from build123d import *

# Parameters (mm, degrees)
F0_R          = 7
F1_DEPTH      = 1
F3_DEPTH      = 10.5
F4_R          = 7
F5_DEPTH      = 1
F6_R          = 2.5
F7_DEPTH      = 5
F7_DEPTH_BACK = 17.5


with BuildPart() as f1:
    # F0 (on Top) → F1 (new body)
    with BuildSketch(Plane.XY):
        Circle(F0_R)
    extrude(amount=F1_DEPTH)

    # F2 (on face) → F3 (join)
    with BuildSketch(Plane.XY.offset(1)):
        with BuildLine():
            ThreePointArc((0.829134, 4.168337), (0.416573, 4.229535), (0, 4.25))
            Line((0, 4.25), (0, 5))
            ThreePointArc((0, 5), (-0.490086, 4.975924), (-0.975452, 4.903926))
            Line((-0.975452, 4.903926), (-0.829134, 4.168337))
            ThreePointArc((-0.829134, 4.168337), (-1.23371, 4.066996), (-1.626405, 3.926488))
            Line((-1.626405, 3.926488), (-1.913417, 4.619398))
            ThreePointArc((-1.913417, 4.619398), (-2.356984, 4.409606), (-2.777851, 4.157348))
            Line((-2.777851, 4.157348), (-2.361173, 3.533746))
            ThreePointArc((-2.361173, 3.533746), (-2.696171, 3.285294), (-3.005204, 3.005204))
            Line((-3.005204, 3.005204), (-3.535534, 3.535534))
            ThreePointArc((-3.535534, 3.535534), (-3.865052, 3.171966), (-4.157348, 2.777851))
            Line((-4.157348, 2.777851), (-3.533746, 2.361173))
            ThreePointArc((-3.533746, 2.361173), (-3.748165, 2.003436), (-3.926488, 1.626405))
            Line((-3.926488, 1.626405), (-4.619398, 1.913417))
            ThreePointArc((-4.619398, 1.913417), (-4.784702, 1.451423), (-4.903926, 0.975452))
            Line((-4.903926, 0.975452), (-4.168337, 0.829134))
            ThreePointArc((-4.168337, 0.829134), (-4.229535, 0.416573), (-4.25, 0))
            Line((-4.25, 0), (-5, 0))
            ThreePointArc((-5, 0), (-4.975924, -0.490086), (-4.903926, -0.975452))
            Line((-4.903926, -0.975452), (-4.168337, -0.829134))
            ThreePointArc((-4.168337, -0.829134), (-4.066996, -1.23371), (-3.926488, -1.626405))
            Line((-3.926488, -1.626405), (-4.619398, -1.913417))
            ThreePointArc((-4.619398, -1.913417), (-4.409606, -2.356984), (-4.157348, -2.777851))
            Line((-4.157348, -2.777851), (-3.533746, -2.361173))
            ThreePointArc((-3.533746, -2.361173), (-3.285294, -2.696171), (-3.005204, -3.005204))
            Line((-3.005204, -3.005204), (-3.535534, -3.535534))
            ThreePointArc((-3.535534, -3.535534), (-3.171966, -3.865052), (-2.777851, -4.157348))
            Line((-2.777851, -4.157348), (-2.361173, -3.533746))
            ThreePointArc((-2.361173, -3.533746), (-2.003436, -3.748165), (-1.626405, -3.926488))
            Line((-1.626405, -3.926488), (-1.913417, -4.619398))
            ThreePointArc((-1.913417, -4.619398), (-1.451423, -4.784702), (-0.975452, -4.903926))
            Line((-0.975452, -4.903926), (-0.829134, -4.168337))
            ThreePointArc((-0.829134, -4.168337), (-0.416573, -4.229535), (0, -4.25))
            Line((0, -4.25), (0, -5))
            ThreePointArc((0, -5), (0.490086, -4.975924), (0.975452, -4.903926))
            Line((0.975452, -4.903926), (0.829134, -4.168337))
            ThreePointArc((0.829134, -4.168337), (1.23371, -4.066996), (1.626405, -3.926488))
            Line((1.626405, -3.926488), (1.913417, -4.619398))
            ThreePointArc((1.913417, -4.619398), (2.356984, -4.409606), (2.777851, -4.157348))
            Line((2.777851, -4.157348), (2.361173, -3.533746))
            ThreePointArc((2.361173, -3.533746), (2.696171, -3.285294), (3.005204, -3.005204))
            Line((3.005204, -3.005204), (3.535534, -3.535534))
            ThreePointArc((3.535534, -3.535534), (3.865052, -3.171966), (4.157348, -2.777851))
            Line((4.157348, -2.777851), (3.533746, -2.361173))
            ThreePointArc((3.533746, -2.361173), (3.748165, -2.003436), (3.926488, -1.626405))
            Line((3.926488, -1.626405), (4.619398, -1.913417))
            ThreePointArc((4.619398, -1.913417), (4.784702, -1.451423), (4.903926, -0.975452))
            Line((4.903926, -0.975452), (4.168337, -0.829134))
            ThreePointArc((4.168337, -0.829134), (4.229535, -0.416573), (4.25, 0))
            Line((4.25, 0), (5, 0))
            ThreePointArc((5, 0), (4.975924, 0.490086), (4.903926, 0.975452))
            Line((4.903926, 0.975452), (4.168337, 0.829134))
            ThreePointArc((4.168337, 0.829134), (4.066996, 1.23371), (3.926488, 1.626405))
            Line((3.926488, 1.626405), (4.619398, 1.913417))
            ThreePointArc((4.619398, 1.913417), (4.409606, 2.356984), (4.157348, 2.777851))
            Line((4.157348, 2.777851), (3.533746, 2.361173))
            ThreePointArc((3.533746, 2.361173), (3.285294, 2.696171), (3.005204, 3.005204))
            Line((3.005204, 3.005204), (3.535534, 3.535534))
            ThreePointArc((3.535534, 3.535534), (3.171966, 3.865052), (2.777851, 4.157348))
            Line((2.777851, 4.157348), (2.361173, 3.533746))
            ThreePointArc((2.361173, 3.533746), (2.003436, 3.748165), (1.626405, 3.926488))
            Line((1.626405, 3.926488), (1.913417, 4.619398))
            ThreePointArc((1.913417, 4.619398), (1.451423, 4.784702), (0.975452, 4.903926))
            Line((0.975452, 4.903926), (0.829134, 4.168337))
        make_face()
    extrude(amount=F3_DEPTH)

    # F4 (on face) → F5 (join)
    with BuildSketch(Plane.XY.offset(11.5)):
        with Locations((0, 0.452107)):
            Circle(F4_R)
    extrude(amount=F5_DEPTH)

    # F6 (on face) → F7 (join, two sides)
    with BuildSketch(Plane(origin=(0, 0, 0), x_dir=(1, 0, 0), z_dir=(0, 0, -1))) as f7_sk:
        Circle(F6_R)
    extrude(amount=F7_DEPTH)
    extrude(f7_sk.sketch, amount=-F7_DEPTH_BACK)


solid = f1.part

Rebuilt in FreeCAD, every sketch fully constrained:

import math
import FreeCAD as App
import Part
import Sketcher

V = App.Vector
Q = App.Units.Quantity

doc = App.newDocument("Part")
body = doc.addObject("PartDesign::Body", "Body")

# Sketch on XY plane
sketch1 = doc.addObject("Sketcher::SketchObject", "Sketch")
body.addObject(sketch1)
sketch1.AttachmentSupport = (doc.XY_Plane, [""])
sketch1.MapMode = "FlatFace"
sketch1.addGeometry(Part.Circle(V(0, 0, 0), V(0, 0, 1), 7), False)
sketch1.addConstraint([
    Sketcher.Constraint("Coincident", 0, 3, -1, 1),
    Sketcher.Constraint("Diameter", 0, 14.0),
])
pad1 = doc.addObject("PartDesign::Pad", "Pad")
body.addObject(pad1)
pad1.Profile = sketch1
pad1.Length = 1

# Sketch on XY plane
sketch2 = doc.addObject("Sketcher::SketchObject", "Sketch001")
body.addObject(sketch2)
sketch2.AttachmentSupport = (doc.XY_Plane, [""])
sketch2.MapMode = "FlatFace"
sketch2.AttachmentOffset = App.Placement(V(0, 0, 1), App.Rotation())
sketch2.addGeometry([
    Part.ArcOfCircle(Part.Circle(V(0.000001, 0.000027, 0), V(0, 0, 1), 4.249973), math.radians(78.749933), math.radians(90.000008)),  # 0
    Part.LineSegment(V(0, 4.25, 0), V(0, 5, 0)),  # 1
    Part.ArcOfCircle(Part.Circle(V(-0.00001, 0.000114, 0), V(0, 0, 1), 4.999886), math.radians(89.999889), math.radians(101.250153)),  # 2
    Part.LineSegment(V(-0.975452, 4.903926, 0), V(-0.829134, 4.168337, 0)),  # 3
    Part.ArcOfCircle(Part.Circle(V(0.000012, -0.000049, 0), V(0, 0, 1), 4.25005), math.radians(101.250031), math.radians(112.499901)),  # 4
    Part.LineSegment(V(-1.626405, 3.926488, 0), V(-1.913417, 4.619398, 0)),  # 5
    Part.ArcOfCircle(Part.Circle(V(0.00002, -0.000034, 0), V(0, 0, 1), 5.000039), math.radians(112.500064), math.radians(123.749978)),  # 6
    Part.LineSegment(V(-2.777851, 4.157348, 0), V(-2.361173, 3.533746, 0)),  # 7
    Part.ArcOfCircle(Part.Circle(V(0.000087, -0.000109, 0), V(0, 0, 1), 4.250139), math.radians(123.75015), math.radians(134.999788)),  # 8
    Part.LineSegment(V(-3.005204, 3.005204, 0), V(-3.535534, 3.535534, 0)),  # 9
    Part.ArcOfCircle(Part.Circle(V(0.000076, -0.000061, 0), V(0, 0, 1), 5.000097), math.radians(135.000125), math.radians(146.249908)),  # 10
    Part.LineSegment(V(-4.157348, 2.777851, 0), V(-3.533746, 2.361173, 0)),  # 11
    Part.ArcOfCircle(Part.Circle(V(0.000071, -0.000039, 0), V(0, 0, 1), 4.25008), math.radians(146.250093), math.radians(157.499868)),  # 12
    Part.LineSegment(V(-3.926488, 1.626405, 0), V(-4.619398, 1.913417, 0)),  # 13
    Part.ArcOfCircle(Part.Circle(V(-0.000045, 0.000017, 0), V(0, 0, 1), 4.999953), math.radians(157.499983), math.radians(168.750081)),  # 14
    Part.LineSegment(V(-4.903926, 0.975452, 0), V(-4.168337, 0.829134, 0)),  # 15
    Part.ArcOfCircle(Part.Circle(V(-0.000027, 0.000001, 0), V(0, 0, 1), 4.249973), math.radians(168.749933), math.radians(180.000008)),  # 16
    Part.LineSegment(V(-4.25, 0, 0), V(-5, 0, 0)),  # 17
    Part.ArcOfCircle(Part.Circle(V(-0.000114, -0.00001, 0), V(0, 0, 1), 4.999886), math.radians(179.999889), math.radians(191.250153)),  # 18
    Part.LineSegment(V(-4.903926, -0.975452, 0), V(-4.168337, -0.829134, 0)),  # 19
    Part.ArcOfCircle(Part.Circle(V(0.000049, 0.000012, 0), V(0, 0, 1), 4.25005), math.radians(-168.749969), math.radians(-157.500099)),  # 20
    Part.LineSegment(V(-3.926488, -1.626405, 0), V(-4.619398, -1.913417, 0)),  # 21
    Part.ArcOfCircle(Part.Circle(V(0.000034, 0.00002, 0), V(0, 0, 1), 5.000039), math.radians(-157.499936), math.radians(-146.250022)),  # 22
    Part.LineSegment(V(-4.157348, -2.777851, 0), V(-3.533746, -2.361173, 0)),  # 23
    Part.ArcOfCircle(Part.Circle(V(0.000109, 0.000087, 0), V(0, 0, 1), 4.250139), math.radians(-146.24985), math.radians(-135.000212)),  # 24
    Part.LineSegment(V(-3.005204, -3.005204, 0), V(-3.535534, -3.535534, 0)),  # 25
    Part.ArcOfCircle(Part.Circle(V(0.000061, 0.000076, 0), V(0, 0, 1), 5.000097), math.radians(-134.999875), math.radians(-123.750092)),  # 26
    Part.LineSegment(V(-2.777851, -4.157348, 0), V(-2.361173, -3.533746, 0)),  # 27
    Part.ArcOfCircle(Part.Circle(V(0.000039, 0.000071, 0), V(0, 0, 1), 4.25008), math.radians(-123.749907), math.radians(-112.500132)),  # 28
    Part.LineSegment(V(-1.626405, -3.926488, 0), V(-1.913417, -4.619398, 0)),  # 29
    Part.ArcOfCircle(Part.Circle(V(-0.000017, -0.000045, 0), V(0, 0, 1), 4.999953), math.radians(-112.500017), math.radians(-101.249919)),  # 30
    Part.LineSegment(V(-0.975452, -4.903926, 0), V(-0.829134, -4.168337, 0)),  # 31
    Part.ArcOfCircle(Part.Circle(V(-0.000001, -0.000027, 0), V(0, 0, 1), 4.249973), math.radians(-101.250067), math.radians(-89.999992)),  # 32
    Part.LineSegment(V(0, -4.25, 0), V(0, -5, 0)),  # 33
    Part.ArcOfCircle(Part.Circle(V(0.00001, -0.000114, 0), V(0, 0, 1), 4.999886), math.radians(-90.000111), math.radians(-78.749847)),  # 34
    Part.LineSegment(V(0.975452, -4.903926, 0), V(0.829134, -4.168337, 0)),  # 35
    Part.ArcOfCircle(Part.Circle(V(-0.000012, 0.000049, 0), V(0, 0, 1), 4.25005), math.radians(-78.749969), math.radians(-67.500099)),  # 36
    Part.LineSegment(V(1.626405, -3.926488, 0), V(1.913417, -4.619398, 0)),  # 37
    Part.ArcOfCircle(Part.Circle(V(-0.00002, 0.000034, 0), V(0, 0, 1), 5.000039), math.radians(-67.499936), math.radians(-56.250022)),  # 38
    Part.LineSegment(V(2.777851, -4.157348, 0), V(2.361173, -3.533746, 0)),  # 39
    Part.ArcOfCircle(Part.Circle(V(-0.000087, 0.000109, 0), V(0, 0, 1), 4.250139), math.radians(-56.24985), math.radians(-45.000212)),  # 40
    Part.LineSegment(V(3.005204, -3.005204, 0), V(3.535534, -3.535534, 0)),  # 41
    Part.ArcOfCircle(Part.Circle(V(-0.000076, 0.000061, 0), V(0, 0, 1), 5.000097), math.radians(-44.999875), math.radians(-33.750092)),  # 42
    Part.LineSegment(V(4.157348, -2.777851, 0), V(3.533746, -2.361173, 0)),  # 43
    Part.ArcOfCircle(Part.Circle(V(-0.000071, 0.000039, 0), V(0, 0, 1), 4.25008), math.radians(-33.749907), math.radians(-22.500132)),  # 44
    Part.LineSegment(V(3.926488, -1.626405, 0), V(4.619398, -1.913417, 0)),  # 45
    Part.ArcOfCircle(Part.Circle(V(0.000045, -0.000017, 0), V(0, 0, 1), 4.999953), math.radians(-22.500017), math.radians(-11.249919)),  # 46
    Part.LineSegment(V(4.903926, -0.975452, 0), V(4.168337, -0.829134, 0)),  # 47
    Part.ArcOfCircle(Part.Circle(V(0.000027, -0.000001, 0), V(0, 0, 1), 4.249973), math.radians(-11.250067), math.radians(0.000008)),  # 48
    Part.LineSegment(V(4.25, 0, 0), V(5, 0, 0)),  # 49
    Part.ArcOfCircle(Part.Circle(V(0.000114, 0.00001, 0), V(0, 0, 1), 4.999886), math.radians(-0.000111), math.radians(11.250153)),  # 50
    Part.LineSegment(V(4.903926, 0.975452, 0), V(4.168337, 0.829134, 0)),  # 51
    Part.ArcOfCircle(Part.Circle(V(-0.000049, -0.000012, 0), V(0, 0, 1), 4.25005), math.radians(11.250031), math.radians(22.499901)),  # 52
    Part.LineSegment(V(3.926488, 1.626405, 0), V(4.619398, 1.913417, 0)),  # 53
    Part.ArcOfCircle(Part.Circle(V(-0.000034, -0.00002, 0), V(0, 0, 1), 5.000039), math.radians(22.500064), math.radians(33.749978)),  # 54
    Part.LineSegment(V(4.157348, 2.777851, 0), V(3.533746, 2.361173, 0)),  # 55
    Part.ArcOfCircle(Part.Circle(V(-0.000109, -0.000087, 0), V(0, 0, 1), 4.250139), math.radians(33.75015), math.radians(44.999788)),  # 56
    Part.LineSegment(V(3.005204, 3.005204, 0), V(3.535534, 3.535534, 0)),  # 57
    Part.ArcOfCircle(Part.Circle(V(-0.000061, -0.000076, 0), V(0, 0, 1), 5.000097), math.radians(45.000125), math.radians(56.249908)),  # 58
    Part.LineSegment(V(2.777851, 4.157348, 0), V(2.361173, 3.533746, 0)),  # 59
    Part.ArcOfCircle(Part.Circle(V(-0.000039, -0.000071, 0), V(0, 0, 1), 4.25008), math.radians(56.250093), math.radians(67.499868)),  # 60
    Part.LineSegment(V(1.626405, 3.926488, 0), V(1.913417, 4.619398, 0)),  # 61
    Part.ArcOfCircle(Part.Circle(V(0.000017, 0.000045, 0), V(0, 0, 1), 4.999953), math.radians(67.499983), math.radians(78.750081)),  # 62
    Part.LineSegment(V(0.975452, 4.903926, 0), V(0.829134, 4.168337, 0)),  # 63
], False)
sketch2.addConstraint([
    Sketcher.Constraint("Coincident", 0, 2, 1, 1),
    Sketcher.Constraint("Coincident", 1, 2, 2, 1),
    Sketcher.Constraint("Coincident", 2, 2, 3, 1),
    Sketcher.Constraint("Coincident", 3, 2, 4, 1),
    Sketcher.Constraint("Coincident", 4, 2, 5, 1),
    Sketcher.Constraint("Coincident", 5, 2, 6, 1),
    Sketcher.Constraint("Coincident", 6, 2, 7, 1),
    Sketcher.Constraint("Coincident", 7, 2, 8, 1),
    Sketcher.Constraint("Coincident", 8, 2, 9, 1),
    Sketcher.Constraint("Coincident", 9, 2, 10, 1),
    Sketcher.Constraint("Coincident", 10, 2, 11, 1),
    Sketcher.Constraint("Coincident", 11, 2, 12, 1),
    Sketcher.Constraint("Coincident", 12, 2, 13, 1),
    Sketcher.Constraint("Coincident", 13, 2, 14, 1),
    Sketcher.Constraint("Coincident", 14, 2, 15, 1),
    Sketcher.Constraint("Coincident", 15, 2, 16, 1),
    Sketcher.Constraint("Coincident", 16, 2, 17, 1),
    Sketcher.Constraint("Coincident", 17, 2, 18, 1),
    Sketcher.Constraint("Coincident", 18, 2, 19, 1),
    Sketcher.Constraint("Coincident", 19, 2, 20, 1),
    Sketcher.Constraint("Coincident", 20, 2, 21, 1),
    Sketcher.Constraint("Coincident", 21, 2, 22, 1),
    Sketcher.Constraint("Coincident", 22, 2, 23, 1),
    Sketcher.Constraint("Coincident", 23, 2, 24, 1),
    Sketcher.Constraint("Coincident", 24, 2, 25, 1),
    Sketcher.Constraint("Coincident", 25, 2, 26, 1),
    Sketcher.Constraint("Coincident", 26, 2, 27, 1),
    Sketcher.Constraint("Coincident", 27, 2, 28, 1),
    Sketcher.Constraint("Coincident", 28, 2, 29, 1),
    Sketcher.Constraint("Coincident", 29, 2, 30, 1),
    Sketcher.Constraint("Coincident", 30, 2, 31, 1),
    Sketcher.Constraint("Coincident", 31, 2, 32, 1),
    Sketcher.Constraint("Coincident", 32, 2, 33, 1),
    Sketcher.Constraint("Coincident", 33, 2, 34, 1),
    Sketcher.Constraint("Coincident", 34, 2, 35, 1),
    Sketcher.Constraint("Coincident", 35, 2, 36, 1),
    Sketcher.Constraint("Coincident", 36, 2, 37, 1),
    Sketcher.Constraint("Coincident", 37, 2, 38, 1),
    Sketcher.Constraint("Coincident", 38, 2, 39, 1),
    Sketcher.Constraint("Coincident", 39, 2, 40, 1),
    Sketcher.Constraint("Coincident", 40, 2, 41, 1),
    Sketcher.Constraint("Coincident", 41, 2, 42, 1),
    Sketcher.Constraint("Coincident", 42, 2, 43, 1),
    Sketcher.Constraint("Coincident", 43, 2, 44, 1),
    Sketcher.Constraint("Coincident", 44, 2, 45, 1),
    Sketcher.Constraint("Coincident", 45, 2, 46, 1),
    Sketcher.Constraint("Coincident", 46, 2, 47, 1),
    Sketcher.Constraint("Coincident", 47, 2, 48, 1),
    Sketcher.Constraint("Coincident", 48, 2, 49, 1),
    Sketcher.Constraint("Coincident", 49, 2, 50, 1),
    Sketcher.Constraint("Coincident", 50, 2, 51, 1),
    Sketcher.Constraint("Coincident", 51, 2, 52, 1),
    Sketcher.Constraint("Coincident", 52, 2, 53, 1),
    Sketcher.Constraint("Coincident", 53, 2, 54, 1),
    Sketcher.Constraint("Coincident", 54, 2, 55, 1),
    Sketcher.Constraint("Coincident", 55, 2, 56, 1),
    Sketcher.Constraint("Coincident", 56, 2, 57, 1),
    Sketcher.Constraint("Coincident", 57, 2, 58, 1),
    Sketcher.Constraint("Coincident", 58, 2, 59, 1),
    Sketcher.Constraint("Coincident", 59, 2, 60, 1),
    Sketcher.Constraint("Coincident", 60, 2, 61, 1),
    Sketcher.Constraint("Coincident", 61, 2, 62, 1),
    Sketcher.Constraint("Coincident", 62, 2, 63, 1),
    Sketcher.Constraint("Coincident", 63, 2, 0, 1),
    Sketcher.Constraint("Vertical", 1),
    Sketcher.Constraint("Horizontal", 17),
    Sketcher.Constraint("Vertical", 33),
    Sketcher.Constraint("Horizontal", 49),
    Sketcher.Constraint("Equal", 0, 16),
    Sketcher.Constraint("Equal", 2, 18),
    Sketcher.Constraint("Equal", 4, 20),
    Sketcher.Constraint("Equal", 6, 22),
    Sketcher.Constraint("Equal", 8, 24),
    Sketcher.Constraint("Equal", 10, 26),
    Sketcher.Constraint("Equal", 12, 28),
    Sketcher.Constraint("Equal", 14, 30),
    Sketcher.Constraint("Equal", 16, 32),
    Sketcher.Constraint("Equal", 18, 34),
    Sketcher.Constraint("Equal", 20, 36),
    Sketcher.Constraint("Equal", 22, 38),
    Sketcher.Constraint("Equal", 24, 40),
    Sketcher.Constraint("Equal", 26, 42),
    Sketcher.Constraint("Equal", 28, 44),
    Sketcher.Constraint("Equal", 30, 46),
    Sketcher.Constraint("Equal", 32, 48),
    Sketcher.Constraint("Equal", 34, 50),
    Sketcher.Constraint("Equal", 36, 52),
    Sketcher.Constraint("Equal", 38, 54),
    Sketcher.Constraint("Equal", 40, 56),
    Sketcher.Constraint("Equal", 42, 58),
    Sketcher.Constraint("Equal", 44, 60),
    Sketcher.Constraint("Equal", 46, 62),
    Sketcher.Constraint("Symmetric", 0, 3, 32, 3, -1, 1),
    Sketcher.Constraint("Symmetric", 2, 3, 34, 3, -1, 1),
    Sketcher.Constraint("Symmetric", 4, 3, 36, 3, -1, 1),
    Sketcher.Constraint("Symmetric", 6, 3, 38, 3, -1, 1),
    Sketcher.Constraint("Symmetric", 8, 3, 40, 3, -1, 1),
    Sketcher.Constraint("Symmetric", 10, 3, 42, 3, -1, 1),
    Sketcher.Constraint("Symmetric", 12, 3, 44, 3, -1, 1),
    Sketcher.Constraint("Symmetric", 14, 3, 46, 3, -1, 1),
    Sketcher.Constraint("Symmetric", 16, 3, 48, 3, -1, 1),
    Sketcher.Constraint("Symmetric", 18, 3, 50, 3, -1, 1),
    Sketcher.Constraint("Symmetric", 20, 3, 52, 3, -1, 1),
    Sketcher.Constraint("Symmetric", 22, 3, 54, 3, -1, 1),
    Sketcher.Constraint("Symmetric", 24, 3, 56, 3, -1, 1),
    Sketcher.Constraint("Symmetric", 26, 3, 58, 3, -1, 1),
    Sketcher.Constraint("Symmetric", 28, 3, 60, 3, -1, 1),
    Sketcher.Constraint("Symmetric", 30, 3, 62, 3, -1, 1),
    Sketcher.Constraint("Symmetric", 14, 3, 20, 3, -2),
    Sketcher.Constraint("Symmetric", 4, 3, 30, 3, -2),
    Sketcher.Constraint("Symmetric", 30, 2, 34, 2, -2),
    Sketcher.Constraint("Symmetric", 31, 2, 35, 2, -2),
    Sketcher.Constraint("Symmetric", 28, 2, 36, 2, -2),
    Sketcher.Constraint("Symmetric", 29, 2, 37, 2, -2),
    Sketcher.Constraint("Symmetric", 26, 2, 38, 2, -2),
    Sketcher.Constraint("Symmetric", 27, 2, 39, 2, -2),
    Sketcher.Constraint("Symmetric", 24, 2, 40, 2, -2),
    Sketcher.Constraint("Symmetric", 25, 2, 41, 2, -2),
    Sketcher.Constraint("Symmetric", 22, 2, 42, 2, -2),
    Sketcher.Constraint("Symmetric", 23, 2, 43, 2, -2),
    Sketcher.Constraint("Symmetric", 20, 2, 44, 2, -2),
    Sketcher.Constraint("Symmetric", 21, 2, 45, 2, -2),
    Sketcher.Constraint("Symmetric", 18, 2, 46, 2, -2),
    Sketcher.Constraint("Symmetric", 19, 2, 47, 2, -2),
    Sketcher.Constraint("PointOnObject", 0, 3, -2),
    Sketcher.Constraint("PointOnObject", 16, 3, -1),
    Sketcher.Constraint("PointOnObject", 0, 2, -2),
    Sketcher.Constraint("PointOnObject", 16, 2, -1),
    Sketcher.Constraint("PointOnObject", 32, 2, -2),
    Sketcher.Constraint("PointOnObject", 48, 2, -1),
    Sketcher.Constraint("Perpendicular", 3, 19),
    Sketcher.Constraint("Perpendicular", 5, 21),
    Sketcher.Constraint("Perpendicular", 7, 23),
    Sketcher.Constraint("Perpendicular", 9, 25),
    Sketcher.Constraint("Perpendicular", 11, 27),
    Sketcher.Constraint("Perpendicular", 13, 29),
    Sketcher.Constraint("Perpendicular", 15, 31),
    Sketcher.Constraint("Perpendicular", 19, 35),
    Sketcher.Constraint("Perpendicular", 21, 37),
    Sketcher.Constraint("Perpendicular", 23, 39),
    Sketcher.Constraint("Perpendicular", 25, 41),
    Sketcher.Constraint("Perpendicular", 35, 51),
    Sketcher.Constraint("Perpendicular", 37, 53),
    Sketcher.Constraint("Perpendicular", 39, 55),
    Sketcher.Constraint("Perpendicular", 41, 57),
    Sketcher.Constraint("Perpendicular", 43, 59),
    Sketcher.Constraint("Perpendicular", 45, 61),
    Sketcher.Constraint("Perpendicular", 47, 63),
    Sketcher.Constraint("Horizontal", 14, 2, 50, 2),
    Sketcher.Constraint("Horizontal", 12, 2, 52, 2),
    Sketcher.Constraint("Horizontal", 10, 2, 54, 2),
    Sketcher.Constraint("Horizontal", 8, 2, 56, 2),
    Sketcher.Constraint("Horizontal", 6, 2, 58, 2),
    Sketcher.Constraint("Horizontal", 4, 2, 60, 2),
    Sketcher.Constraint("Horizontal", 2, 2, 62, 2),
    Sketcher.Constraint("Vertical", 14, 2, 18, 2),
    Sketcher.Constraint("Vertical", 12, 2, 20, 2),
    Sketcher.Constraint("Vertical", 10, 2, 22, 2),
    Sketcher.Constraint("Vertical", 8, 2, 24, 2),
    Sketcher.Constraint("Vertical", 6, 2, 26, 2),
    Sketcher.Constraint("Vertical", 4, 2, 28, 2),
    Sketcher.Constraint("Vertical", 2, 2, 30, 2),
    Sketcher.Constraint("Equal", 49, 1),
    Sketcher.Constraint("Equal", 3, 5),
    Sketcher.Constraint("Equal", 5, 7),
    Sketcher.Constraint("Equal", 7, 9),
    Sketcher.Constraint("Equal", 9, 11),
    Sketcher.Constraint("Equal", 11, 13),
    Sketcher.Constraint("Equal", 13, 15),
    Sketcher.Constraint("DistanceY", -1, 1, 1, 2, 5.0),
    Sketcher.Constraint("DistanceX", 17, 2, 17, 1, 0.75),
    Sketcher.Constraint("Angle", 3, Q("-78.749981 deg")),
    Sketcher.Constraint("Distance", 3, 0.75),
    Sketcher.Constraint("Radius", 4, 4.25005),
    Sketcher.Constraint("Radius", 6, 5.000039),
    Sketcher.Constraint("Radius", 8, 4.250139),
    Sketcher.Constraint("Radius", 12, 4.25008),
    Sketcher.Constraint("Radius", 0, 4.249973),
    Sketcher.Constraint("Radius", 2, 4.999886),
    Sketcher.Constraint("Radius", 10, 5.000097),
    Sketcher.Constraint("DistanceY", -1, 1, 5, 2, 4.619398),
    Sketcher.Constraint("DistanceX", 13, 2, -1, 1, 4.619398),
    Sketcher.Constraint("DistanceY", 8, 3, -1, 1, 0.000109),
    Sketcher.Constraint("DistanceX", -1, 1, 24, 3, 0.000109),
    Sketcher.Constraint("DistanceX", 6, 2, -1, 1, 2.777851),
    Sketcher.Constraint("DistanceY", -1, 1, 6, 2, 4.157348),
    Sketcher.Constraint("DistanceX", 10, 2, -1, 1, 4.157348),
    Sketcher.Constraint("DistanceX", 12, 2, -1, 1, 3.926488),
    Sketcher.Constraint("DistanceY", -1, 1, 14, 2, 0.975452),
    Sketcher.Constraint("DistanceX", 30, 2, -1, 1, 0.975452),
    Sketcher.Constraint("DistanceX", 7, 2, -1, 1, 2.361173),
    Sketcher.Constraint("DistanceX", 8, 2, -1, 1, 3.005204),
])
pad2 = doc.addObject("PartDesign::Pad", "Pad001")
body.addObject(pad2)
pad2.Profile = sketch2
pad2.Length = 10.5

# Sketch on XY plane
sketch3 = doc.addObject("Sketcher::SketchObject", "Sketch002")
body.addObject(sketch3)
sketch3.AttachmentSupport = (doc.XY_Plane, [""])
sketch3.MapMode = "FlatFace"
sketch3.AttachmentOffset = App.Placement(V(0, 0, 11.5), App.Rotation())
sketch3.addGeometry(Part.Circle(V(0, 0.452107, 0), V(0, 0, 1), 7), False)
sketch3.addConstraint([
    Sketcher.Constraint("PointOnObject", 0, 3, -2),
    Sketcher.Constraint("Diameter", 0, 14.0),
    Sketcher.Constraint("DistanceY", -1, 1, 0, 3, 0.452107),
])
pad3 = doc.addObject("PartDesign::Pad", "Pad002")
body.addObject(pad3)
pad3.Profile = sketch3
pad3.Length = 1

# Sketch on XY plane
sketch4 = doc.addObject("Sketcher::SketchObject", "Sketch003")
body.addObject(sketch4)
sketch4.AttachmentSupport = (doc.XY_Plane, [""])
sketch4.MapMode = "FlatFace"
sketch4.addGeometry(Part.Circle(V(0, 0, 0), V(0, 0, 1), 2.5), False)
sketch4.addConstraint([
    Sketcher.Constraint("Coincident", 0, 3, -1, 1),
    Sketcher.Constraint("Diameter", 0, 5.0),
])
pad4 = doc.addObject("PartDesign::Pad", "Pad003")
body.addObject(pad4)
pad4.Profile = sketch4
pad4.Type = "TwoLengths"
pad4.Length = 5
pad4.Length2 = 17.5
pad4.Reversed = True

doc.recompute()
